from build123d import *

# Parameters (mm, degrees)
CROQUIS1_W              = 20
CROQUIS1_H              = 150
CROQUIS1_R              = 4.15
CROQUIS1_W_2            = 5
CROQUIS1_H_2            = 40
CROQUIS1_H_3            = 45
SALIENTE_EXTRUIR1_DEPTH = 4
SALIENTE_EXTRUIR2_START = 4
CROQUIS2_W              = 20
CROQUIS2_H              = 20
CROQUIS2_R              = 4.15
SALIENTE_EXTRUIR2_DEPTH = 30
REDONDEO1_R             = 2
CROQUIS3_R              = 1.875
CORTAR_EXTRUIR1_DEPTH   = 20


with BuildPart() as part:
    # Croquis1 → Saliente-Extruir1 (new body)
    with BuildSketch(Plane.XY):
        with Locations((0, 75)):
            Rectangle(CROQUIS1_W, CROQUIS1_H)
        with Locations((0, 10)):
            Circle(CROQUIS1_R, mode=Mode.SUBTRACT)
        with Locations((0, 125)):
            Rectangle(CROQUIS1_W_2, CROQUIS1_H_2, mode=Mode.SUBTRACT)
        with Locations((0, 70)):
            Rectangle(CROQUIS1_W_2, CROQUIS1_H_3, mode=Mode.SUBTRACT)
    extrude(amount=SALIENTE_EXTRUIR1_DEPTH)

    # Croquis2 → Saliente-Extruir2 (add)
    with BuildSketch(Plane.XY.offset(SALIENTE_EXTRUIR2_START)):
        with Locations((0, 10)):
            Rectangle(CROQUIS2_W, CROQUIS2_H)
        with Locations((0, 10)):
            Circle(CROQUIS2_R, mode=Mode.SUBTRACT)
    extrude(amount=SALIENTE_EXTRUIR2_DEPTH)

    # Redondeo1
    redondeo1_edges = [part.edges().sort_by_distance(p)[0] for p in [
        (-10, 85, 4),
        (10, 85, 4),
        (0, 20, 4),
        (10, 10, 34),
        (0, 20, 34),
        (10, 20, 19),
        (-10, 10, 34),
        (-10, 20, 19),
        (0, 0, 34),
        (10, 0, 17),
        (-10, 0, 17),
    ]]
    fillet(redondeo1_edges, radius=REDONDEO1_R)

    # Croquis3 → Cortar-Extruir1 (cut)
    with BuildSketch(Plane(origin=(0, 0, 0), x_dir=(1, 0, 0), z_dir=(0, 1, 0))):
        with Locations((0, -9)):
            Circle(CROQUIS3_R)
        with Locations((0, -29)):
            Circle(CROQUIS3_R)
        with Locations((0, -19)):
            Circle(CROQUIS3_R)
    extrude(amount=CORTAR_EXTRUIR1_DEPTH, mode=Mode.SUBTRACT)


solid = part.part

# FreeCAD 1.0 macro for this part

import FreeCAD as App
import Part
import Sketcher


def edges_at(feature, points):
    """Names of the edges that pass closest to the given points."""
    edges = feature.Shape.Edges
    near = lambda p: min(range(len(edges)), key=lambda i: edges[i].distToShape(Part.Vertex(*p))[0])
    return sorted({f"Edge{near(p) + 1}" for p in points})


def add_polygon(sketch, points):
    """Adds a closed chain of lines whose ends are joined by coincident constraints."""
    first, n = sketch.GeometryCount, len(points)
    for a, b in zip(points, points[1:] + points[:1]):
        sketch.addGeometry(Part.LineSegment(App.Vector(*a, 0), App.Vector(*b, 0)), False)
    for i in range(n):
        sketch.addConstraint(Sketcher.Constraint("Coincident", first + i, 2, first + (i + 1) % n, 1))

doc = App.newDocument("Part")
body = doc.addObject("PartDesign::Body", "Body")

# Sketch on XY plane
sketch1 = doc.addObject("Sketcher::SketchObject", "Sketch")
body.addObject(sketch1)
sketch1.AttachmentSupport = (doc.XY_Plane, [""])
sketch1.MapMode = "FlatFace"
add_polygon(sketch1, [(-10, 150), (-10, 0), (10, 0), (10, 150)])  # lines 0-3
sketch1.addGeometry(Part.Circle(App.Vector(0, 10, 0), App.Vector(0, 0, 1), 4.15), False)  # 4
add_polygon(sketch1, [(2.5, 47.5), (-2.5, 47.5), (-2.5, 92.5), (2.5, 92.5)])  # lines 5-8
add_polygon(sketch1, [(2.5, 105), (-2.5, 105), (-2.5, 145), (2.5, 145)])  # lines 9-12
sketch1.addConstraint([
    Sketcher.Constraint("Vertical", 0),
    Sketcher.Constraint("Horizontal", 1),
    Sketcher.Constraint("Vertical", 2),
    Sketcher.Constraint("Horizontal", 3),
    Sketcher.Constraint("Horizontal", 5),
    Sketcher.Constraint("Vertical", 6),
    Sketcher.Constraint("Horizontal", 7),
    Sketcher.Constraint("Vertical", 8),
    Sketcher.Constraint("Horizontal", 9),
    Sketcher.Constraint("Vertical", 10),
    Sketcher.Constraint("Horizontal", 11),
    Sketcher.Constraint("Vertical", 12),
    Sketcher.Constraint("Symmetric", 0, 2, 1, 2, -1, 1),
    Sketcher.Constraint("PointOnObject", 4, 3, -2),
    Sketcher.Constraint("Vertical", 6, 2, 9, 2),
    Sketcher.Constraint("Vertical", 8, 2, 11, 2),
    Sketcher.Constraint("Diameter", 4, 8.3),
    Sketcher.Constraint("DistanceX", 1, 1, 1, 2, 20.0),
    Sketcher.Constraint("DistanceX", 5, 2, 5, 1, 5.0),
    Sketcher.Constraint("DistanceY", 0, 2, 0, 1, 150.0),
    Sketcher.Constraint("DistanceY", 6, 1, 6, 2, 45.0),
    Sketcher.Constraint("DistanceY", 10, 1, 10, 2, 40.0),
    Sketcher.Constraint("DistanceY", -1, 1, 4, 3, 10.0),
    Sketcher.Constraint("DistanceY", -1, 1, 9, 2, 105.0),
    Sketcher.Constraint("DistanceX", 5, 2, -1, 1, 2.5),
    Sketcher.Constraint("DistanceY", -1, 1, 5, 2, 47.5),
])
pad1 = doc.addObject("PartDesign::Pad", "Pad")
body.addObject(pad1)
pad1.Profile = sketch1
pad1.Length = 4

# Sketch on XY plane
sketch2 = doc.addObject("Sketcher::SketchObject", "Sketch001")
body.addObject(sketch2)
sketch2.AttachmentSupport = (doc.XY_Plane, [""])
sketch2.MapMode = "FlatFace"
sketch2.AttachmentOffset = App.Placement(App.Vector(0, 0, 4), App.Rotation())
add_polygon(sketch2, [(-10, 20), (-10, 0), (10, 0), (10, 20)])  # lines 0-3
sketch2.addGeometry(Part.Circle(App.Vector(0, 10, 0), App.Vector(0, 0, 1), 4.15), False)  # 4
sketch2.addConstraint([
    Sketcher.Constraint("Vertical", 0),
    Sketcher.Constraint("Horizontal", 1),
    Sketcher.Constraint("Vertical", 2),
    Sketcher.Constraint("Horizontal", 3),
    Sketcher.Constraint("Symmetric", 0, 2, 1, 2, -1, 1),
    Sketcher.Constraint("PointOnObject", 4, 3, -2),
    Sketcher.Constraint("Equal", 3, 0),
    Sketcher.Constraint("Diameter", 4, 8.3),
    Sketcher.Constraint("DistanceX", 1, 1, 1, 2, 20.0),
    Sketcher.Constraint("DistanceY", -1, 1, 4, 3, 10.0),
])
pad2 = doc.addObject("PartDesign::Pad", "Pad001")
body.addObject(pad2)
pad2.Profile = sketch2
pad2.Length = 30
doc.recompute()

fillet = doc.addObject("PartDesign::Fillet", "Fillet")
body.addObject(fillet)
fillet.Base = (pad2, edges_at(pad2, [
    (-10, 85, 4),
    (10, 85, 4),
    (0, 20, 4),
    (10, 10, 34),
    (0, 20, 34),
    (10, 20, 19),
    (-10, 10, 34),
    (-10, 20, 19),
    (0, 0, 34),
    (10, 0, 17),
    (-10, 0, 17),
]))
fillet.Radius = 2

# Sketch on XZ plane
sketch3 = doc.addObject("Sketcher::SketchObject", "Sketch002")
body.addObject(sketch3)
sketch3.AttachmentSupport = (doc.XZ_Plane, [""])
sketch3.MapMode = "FlatFace"
sketch3.addGeometry([
    Part.Circle(App.Vector(0, 9, 0), App.Vector(0, 0, 1), 1.875),
    Part.Circle(App.Vector(0, 29, 0), App.Vector(0, 0, 1), 1.875),
    Part.Circle(App.Vector(0, 19, 0), App.Vector(0, 0, 1), 1.875),
], False)
sketch3.addConstraint([
    Sketcher.Constraint("Equal", 0, 1),
    Sketcher.Constraint("Equal", 1, 2),
    Sketcher.Constraint("PointOnObject", 0, 3, -2),
    Sketcher.Constraint("PointOnObject", 1, 3, -2),
    Sketcher.Constraint("PointOnObject", 2, 3, -2),
    Sketcher.Constraint("Diameter", 0, 3.75),
    Sketcher.Constraint("DistanceY", -1, 1, 0, 3, 9.0),
    Sketcher.Constraint("DistanceY", -1, 1, 1, 3, 29.0),
    Sketcher.Constraint("DistanceY", -1, 1, 2, 3, 19.0),
])
pocket1 = doc.addObject("PartDesign::Pocket", "Pocket")
body.addObject(pocket1)
pocket1.Profile = sketch3
pocket1.Length = 20

doc.recompute()
